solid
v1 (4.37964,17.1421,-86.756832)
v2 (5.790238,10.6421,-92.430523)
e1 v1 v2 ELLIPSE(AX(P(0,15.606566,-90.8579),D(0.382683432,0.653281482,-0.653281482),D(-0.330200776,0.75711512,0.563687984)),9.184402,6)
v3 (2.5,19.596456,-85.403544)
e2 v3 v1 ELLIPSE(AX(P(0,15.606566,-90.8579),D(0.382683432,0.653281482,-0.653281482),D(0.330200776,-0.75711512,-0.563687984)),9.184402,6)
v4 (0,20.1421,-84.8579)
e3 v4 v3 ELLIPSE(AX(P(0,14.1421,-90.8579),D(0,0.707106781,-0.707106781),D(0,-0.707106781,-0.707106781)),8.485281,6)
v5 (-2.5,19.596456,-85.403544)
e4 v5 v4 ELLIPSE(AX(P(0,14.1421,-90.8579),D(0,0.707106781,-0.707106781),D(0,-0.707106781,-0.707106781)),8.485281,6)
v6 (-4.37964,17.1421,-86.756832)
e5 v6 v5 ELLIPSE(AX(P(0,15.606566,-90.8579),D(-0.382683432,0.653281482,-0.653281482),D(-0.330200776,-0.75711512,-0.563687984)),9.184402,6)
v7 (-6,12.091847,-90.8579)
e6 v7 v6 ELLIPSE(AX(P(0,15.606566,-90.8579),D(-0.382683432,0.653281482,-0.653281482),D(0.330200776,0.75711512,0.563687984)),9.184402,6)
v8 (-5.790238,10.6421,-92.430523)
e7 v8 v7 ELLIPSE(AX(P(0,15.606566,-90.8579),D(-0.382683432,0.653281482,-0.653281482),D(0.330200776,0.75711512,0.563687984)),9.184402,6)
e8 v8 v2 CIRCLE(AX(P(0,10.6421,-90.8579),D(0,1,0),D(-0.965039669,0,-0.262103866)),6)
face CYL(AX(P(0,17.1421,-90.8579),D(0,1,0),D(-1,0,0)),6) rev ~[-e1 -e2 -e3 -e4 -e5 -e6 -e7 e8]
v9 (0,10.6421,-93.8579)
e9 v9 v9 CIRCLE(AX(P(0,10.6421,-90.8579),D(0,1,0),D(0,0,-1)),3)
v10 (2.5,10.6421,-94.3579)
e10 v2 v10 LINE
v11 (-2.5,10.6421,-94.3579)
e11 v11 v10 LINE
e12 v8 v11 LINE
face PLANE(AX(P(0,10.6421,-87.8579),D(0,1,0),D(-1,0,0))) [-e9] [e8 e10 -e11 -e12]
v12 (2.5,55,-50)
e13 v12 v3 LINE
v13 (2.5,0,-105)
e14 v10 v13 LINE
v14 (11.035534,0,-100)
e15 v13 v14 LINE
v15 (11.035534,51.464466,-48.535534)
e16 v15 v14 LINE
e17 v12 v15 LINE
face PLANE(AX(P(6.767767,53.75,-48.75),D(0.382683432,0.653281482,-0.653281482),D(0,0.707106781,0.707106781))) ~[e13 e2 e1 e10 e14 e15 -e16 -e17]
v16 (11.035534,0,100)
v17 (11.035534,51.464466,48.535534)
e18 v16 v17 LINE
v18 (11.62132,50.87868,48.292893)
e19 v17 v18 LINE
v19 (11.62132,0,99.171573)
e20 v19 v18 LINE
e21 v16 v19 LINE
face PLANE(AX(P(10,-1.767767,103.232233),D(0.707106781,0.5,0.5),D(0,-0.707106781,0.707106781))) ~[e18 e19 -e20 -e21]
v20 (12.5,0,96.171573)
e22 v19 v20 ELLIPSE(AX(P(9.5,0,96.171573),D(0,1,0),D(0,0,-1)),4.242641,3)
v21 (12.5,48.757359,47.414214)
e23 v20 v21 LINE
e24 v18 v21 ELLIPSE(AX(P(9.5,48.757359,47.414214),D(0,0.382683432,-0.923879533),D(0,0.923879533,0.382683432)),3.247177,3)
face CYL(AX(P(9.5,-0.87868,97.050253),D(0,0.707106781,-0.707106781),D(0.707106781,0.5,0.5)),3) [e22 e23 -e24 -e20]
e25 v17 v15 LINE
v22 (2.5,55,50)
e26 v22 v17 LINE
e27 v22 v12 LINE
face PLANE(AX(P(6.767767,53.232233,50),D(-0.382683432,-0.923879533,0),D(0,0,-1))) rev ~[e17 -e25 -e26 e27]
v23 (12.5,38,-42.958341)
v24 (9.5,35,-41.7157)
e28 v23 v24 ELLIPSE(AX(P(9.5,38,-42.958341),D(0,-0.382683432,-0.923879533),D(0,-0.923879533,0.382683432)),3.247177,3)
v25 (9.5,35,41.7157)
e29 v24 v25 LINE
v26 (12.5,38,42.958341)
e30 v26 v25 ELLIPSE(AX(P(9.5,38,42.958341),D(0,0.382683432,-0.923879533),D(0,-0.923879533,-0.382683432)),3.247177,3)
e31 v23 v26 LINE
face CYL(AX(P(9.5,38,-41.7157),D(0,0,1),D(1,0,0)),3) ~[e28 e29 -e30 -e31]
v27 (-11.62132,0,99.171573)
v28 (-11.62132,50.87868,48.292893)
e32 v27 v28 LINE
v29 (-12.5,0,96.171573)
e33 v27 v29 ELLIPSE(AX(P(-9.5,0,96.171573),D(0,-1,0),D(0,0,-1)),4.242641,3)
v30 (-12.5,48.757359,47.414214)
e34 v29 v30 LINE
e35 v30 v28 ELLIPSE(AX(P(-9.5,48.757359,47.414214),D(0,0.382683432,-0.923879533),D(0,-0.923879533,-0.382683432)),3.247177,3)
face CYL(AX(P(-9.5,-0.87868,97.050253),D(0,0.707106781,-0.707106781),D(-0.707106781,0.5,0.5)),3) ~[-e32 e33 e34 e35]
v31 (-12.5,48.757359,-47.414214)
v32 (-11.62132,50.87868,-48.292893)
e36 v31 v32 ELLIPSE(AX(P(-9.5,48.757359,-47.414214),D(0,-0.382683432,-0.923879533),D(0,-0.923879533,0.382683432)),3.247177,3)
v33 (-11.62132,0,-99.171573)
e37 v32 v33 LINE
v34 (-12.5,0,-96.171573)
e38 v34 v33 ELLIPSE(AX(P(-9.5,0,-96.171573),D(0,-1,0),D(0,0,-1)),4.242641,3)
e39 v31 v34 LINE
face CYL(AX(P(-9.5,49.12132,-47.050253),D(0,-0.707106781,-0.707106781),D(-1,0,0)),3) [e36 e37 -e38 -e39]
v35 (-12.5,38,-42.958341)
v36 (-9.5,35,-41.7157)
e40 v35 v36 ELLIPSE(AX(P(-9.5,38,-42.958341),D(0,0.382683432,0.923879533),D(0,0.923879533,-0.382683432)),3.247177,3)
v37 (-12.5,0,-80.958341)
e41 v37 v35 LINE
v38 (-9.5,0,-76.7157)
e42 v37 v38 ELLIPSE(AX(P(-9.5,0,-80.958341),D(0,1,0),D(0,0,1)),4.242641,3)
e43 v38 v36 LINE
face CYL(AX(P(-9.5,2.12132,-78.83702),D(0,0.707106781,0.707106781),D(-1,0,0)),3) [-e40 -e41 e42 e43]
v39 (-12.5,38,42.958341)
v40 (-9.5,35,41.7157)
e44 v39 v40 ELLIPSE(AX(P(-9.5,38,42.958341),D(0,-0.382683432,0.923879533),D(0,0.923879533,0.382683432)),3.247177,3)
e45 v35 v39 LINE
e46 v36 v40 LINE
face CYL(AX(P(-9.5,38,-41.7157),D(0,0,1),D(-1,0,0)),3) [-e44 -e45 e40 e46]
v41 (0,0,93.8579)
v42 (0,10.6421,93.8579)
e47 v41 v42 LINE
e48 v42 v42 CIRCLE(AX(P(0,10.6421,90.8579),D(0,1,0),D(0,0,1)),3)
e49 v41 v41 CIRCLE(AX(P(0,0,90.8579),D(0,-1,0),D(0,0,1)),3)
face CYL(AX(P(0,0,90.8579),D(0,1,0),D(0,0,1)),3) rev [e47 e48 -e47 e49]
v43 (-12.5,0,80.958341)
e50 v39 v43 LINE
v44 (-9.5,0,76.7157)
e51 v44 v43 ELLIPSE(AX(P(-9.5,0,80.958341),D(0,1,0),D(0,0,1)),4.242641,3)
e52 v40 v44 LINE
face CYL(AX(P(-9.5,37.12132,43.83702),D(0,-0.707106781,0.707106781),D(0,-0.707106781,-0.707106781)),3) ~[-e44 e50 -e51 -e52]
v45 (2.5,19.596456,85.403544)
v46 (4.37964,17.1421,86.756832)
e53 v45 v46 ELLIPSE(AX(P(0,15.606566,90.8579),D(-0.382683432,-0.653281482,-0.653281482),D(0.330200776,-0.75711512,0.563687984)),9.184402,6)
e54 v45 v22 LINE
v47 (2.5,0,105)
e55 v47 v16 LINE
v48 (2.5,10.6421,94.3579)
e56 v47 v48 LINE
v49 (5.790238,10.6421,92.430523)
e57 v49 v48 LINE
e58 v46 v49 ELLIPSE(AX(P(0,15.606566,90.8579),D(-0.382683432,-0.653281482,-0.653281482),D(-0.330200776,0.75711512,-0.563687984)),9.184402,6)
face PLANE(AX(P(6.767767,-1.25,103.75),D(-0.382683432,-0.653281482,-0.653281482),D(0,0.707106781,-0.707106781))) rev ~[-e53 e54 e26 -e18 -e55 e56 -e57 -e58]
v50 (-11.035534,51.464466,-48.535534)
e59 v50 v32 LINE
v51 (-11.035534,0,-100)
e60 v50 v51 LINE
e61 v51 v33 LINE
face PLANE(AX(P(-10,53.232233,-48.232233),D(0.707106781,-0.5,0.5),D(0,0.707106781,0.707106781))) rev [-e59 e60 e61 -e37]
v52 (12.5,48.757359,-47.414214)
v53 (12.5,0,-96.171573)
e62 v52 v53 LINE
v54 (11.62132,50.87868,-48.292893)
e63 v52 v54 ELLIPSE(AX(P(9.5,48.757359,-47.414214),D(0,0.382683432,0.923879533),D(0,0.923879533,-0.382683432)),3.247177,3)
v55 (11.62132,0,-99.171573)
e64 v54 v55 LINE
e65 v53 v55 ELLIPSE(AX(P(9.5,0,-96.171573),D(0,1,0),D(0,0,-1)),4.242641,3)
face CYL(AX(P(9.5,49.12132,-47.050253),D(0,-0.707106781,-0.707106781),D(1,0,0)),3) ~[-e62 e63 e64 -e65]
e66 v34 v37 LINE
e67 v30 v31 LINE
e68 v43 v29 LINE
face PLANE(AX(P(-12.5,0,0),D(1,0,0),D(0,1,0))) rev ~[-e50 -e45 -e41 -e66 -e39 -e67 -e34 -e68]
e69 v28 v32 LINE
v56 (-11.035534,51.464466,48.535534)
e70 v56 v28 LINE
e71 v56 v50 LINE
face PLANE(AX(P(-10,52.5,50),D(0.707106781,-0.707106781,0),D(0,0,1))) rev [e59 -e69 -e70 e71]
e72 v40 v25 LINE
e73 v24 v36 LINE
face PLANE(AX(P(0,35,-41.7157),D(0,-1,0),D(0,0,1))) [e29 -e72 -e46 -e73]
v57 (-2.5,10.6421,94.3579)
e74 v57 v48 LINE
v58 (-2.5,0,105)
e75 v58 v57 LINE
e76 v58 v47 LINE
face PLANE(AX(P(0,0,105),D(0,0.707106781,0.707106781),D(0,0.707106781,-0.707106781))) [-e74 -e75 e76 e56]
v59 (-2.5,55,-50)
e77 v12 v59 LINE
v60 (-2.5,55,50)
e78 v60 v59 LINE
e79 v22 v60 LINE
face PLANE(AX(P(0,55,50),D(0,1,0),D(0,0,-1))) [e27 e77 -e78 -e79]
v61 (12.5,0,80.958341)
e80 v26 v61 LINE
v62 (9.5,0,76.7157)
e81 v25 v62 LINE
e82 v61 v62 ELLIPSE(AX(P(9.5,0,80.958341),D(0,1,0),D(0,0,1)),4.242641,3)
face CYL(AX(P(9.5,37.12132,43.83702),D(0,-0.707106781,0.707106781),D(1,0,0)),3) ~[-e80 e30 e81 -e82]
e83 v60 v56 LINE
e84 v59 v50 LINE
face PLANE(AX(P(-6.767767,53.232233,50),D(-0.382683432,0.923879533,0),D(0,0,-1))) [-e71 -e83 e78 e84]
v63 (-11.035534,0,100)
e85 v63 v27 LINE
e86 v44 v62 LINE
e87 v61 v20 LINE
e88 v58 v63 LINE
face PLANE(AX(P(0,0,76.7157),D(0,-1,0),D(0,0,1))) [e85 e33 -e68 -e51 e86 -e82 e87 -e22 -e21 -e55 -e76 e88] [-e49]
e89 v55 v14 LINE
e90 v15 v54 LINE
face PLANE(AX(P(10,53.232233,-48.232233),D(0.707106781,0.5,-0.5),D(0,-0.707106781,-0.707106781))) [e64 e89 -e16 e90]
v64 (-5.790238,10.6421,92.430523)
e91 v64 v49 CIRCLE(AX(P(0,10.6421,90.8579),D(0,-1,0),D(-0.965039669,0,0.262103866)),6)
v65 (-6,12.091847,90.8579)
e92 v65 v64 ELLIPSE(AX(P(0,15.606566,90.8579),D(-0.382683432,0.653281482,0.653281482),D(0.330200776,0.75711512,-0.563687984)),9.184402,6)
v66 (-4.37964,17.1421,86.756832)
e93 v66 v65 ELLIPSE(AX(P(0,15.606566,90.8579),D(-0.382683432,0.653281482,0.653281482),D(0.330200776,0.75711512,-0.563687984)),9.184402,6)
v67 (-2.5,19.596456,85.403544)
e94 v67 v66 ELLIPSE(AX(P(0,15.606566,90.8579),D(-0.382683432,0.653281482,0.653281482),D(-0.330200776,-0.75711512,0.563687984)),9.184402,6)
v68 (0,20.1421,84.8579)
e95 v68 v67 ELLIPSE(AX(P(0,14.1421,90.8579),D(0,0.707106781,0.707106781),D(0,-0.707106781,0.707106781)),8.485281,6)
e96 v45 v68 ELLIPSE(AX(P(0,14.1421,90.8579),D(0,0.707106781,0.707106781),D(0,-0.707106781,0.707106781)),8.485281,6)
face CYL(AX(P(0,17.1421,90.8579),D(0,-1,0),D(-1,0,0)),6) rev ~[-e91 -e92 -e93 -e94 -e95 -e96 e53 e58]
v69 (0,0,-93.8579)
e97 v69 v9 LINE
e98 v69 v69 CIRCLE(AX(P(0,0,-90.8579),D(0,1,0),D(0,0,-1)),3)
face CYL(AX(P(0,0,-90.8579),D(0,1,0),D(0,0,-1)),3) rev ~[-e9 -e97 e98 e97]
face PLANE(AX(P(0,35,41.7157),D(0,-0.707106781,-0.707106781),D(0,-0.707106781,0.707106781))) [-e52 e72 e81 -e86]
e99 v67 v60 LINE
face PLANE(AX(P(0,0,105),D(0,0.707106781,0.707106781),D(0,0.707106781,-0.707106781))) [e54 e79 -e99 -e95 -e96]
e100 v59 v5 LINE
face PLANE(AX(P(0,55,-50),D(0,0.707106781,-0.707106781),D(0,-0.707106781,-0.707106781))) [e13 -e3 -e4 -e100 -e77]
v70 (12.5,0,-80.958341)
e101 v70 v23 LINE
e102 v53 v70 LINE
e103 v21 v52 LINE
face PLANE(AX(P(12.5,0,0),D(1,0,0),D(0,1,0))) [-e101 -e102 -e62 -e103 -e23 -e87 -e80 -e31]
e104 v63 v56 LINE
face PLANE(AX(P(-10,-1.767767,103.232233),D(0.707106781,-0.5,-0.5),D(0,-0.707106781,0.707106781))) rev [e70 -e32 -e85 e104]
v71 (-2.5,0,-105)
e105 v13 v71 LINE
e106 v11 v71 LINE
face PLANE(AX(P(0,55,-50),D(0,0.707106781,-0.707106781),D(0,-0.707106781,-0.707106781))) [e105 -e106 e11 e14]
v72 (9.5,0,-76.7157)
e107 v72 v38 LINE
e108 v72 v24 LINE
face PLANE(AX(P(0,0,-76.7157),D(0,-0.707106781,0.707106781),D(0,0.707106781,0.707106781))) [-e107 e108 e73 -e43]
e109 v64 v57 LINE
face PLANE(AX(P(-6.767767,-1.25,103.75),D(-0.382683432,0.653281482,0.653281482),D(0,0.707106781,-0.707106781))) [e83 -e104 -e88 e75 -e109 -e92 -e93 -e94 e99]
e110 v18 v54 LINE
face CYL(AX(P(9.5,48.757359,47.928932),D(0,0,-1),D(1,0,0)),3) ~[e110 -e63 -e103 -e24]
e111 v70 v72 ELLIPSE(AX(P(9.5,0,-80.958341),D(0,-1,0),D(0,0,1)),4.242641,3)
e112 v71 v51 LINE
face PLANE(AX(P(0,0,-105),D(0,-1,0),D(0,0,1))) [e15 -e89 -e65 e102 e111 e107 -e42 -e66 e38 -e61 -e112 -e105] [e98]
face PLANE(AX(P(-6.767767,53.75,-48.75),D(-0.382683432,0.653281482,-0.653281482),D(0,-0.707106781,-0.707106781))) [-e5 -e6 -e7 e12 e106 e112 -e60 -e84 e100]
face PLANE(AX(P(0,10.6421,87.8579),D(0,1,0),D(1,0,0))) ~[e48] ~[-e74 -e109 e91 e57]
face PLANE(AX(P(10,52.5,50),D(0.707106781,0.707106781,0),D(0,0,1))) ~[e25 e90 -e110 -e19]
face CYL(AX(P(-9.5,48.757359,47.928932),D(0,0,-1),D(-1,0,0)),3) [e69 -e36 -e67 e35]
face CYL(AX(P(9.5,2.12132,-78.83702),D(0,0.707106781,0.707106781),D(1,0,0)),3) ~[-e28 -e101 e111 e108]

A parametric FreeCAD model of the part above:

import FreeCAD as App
import Part
import Sketcher
Q = App.Units.Quantity


def edges_at(feature, points):
    """Names of the edges that pass closest to the given points."""
    edges = feature.Shape.Edges
    near = lambda p: min(range(len(edges)), key=lambda i: edges[i].distToShape(Part.Vertex(*p))[0])
    return sorted({f"Edge{near(p) + 1}" for p in points})


def add_polygon(sketch, points):
    """Adds a closed chain of lines whose ends are joined by coincident constraints."""
    first, n = sketch.GeometryCount, len(points)
    for a, b in zip(points, points[1:] + points[:1]):
        sketch.addGeometry(Part.LineSegment(App.Vector(*a, 0), App.Vector(*b, 0)), False)
    for i in range(n):
        sketch.addConstraint(Sketcher.Constraint("Coincident", first + i, 2, first + (i + 1) % n, 1))

doc = App.newDocument("Part")
body = doc.addObject("PartDesign::Body", "Body")

# Sketch on YZ plane
sketch1 = body.newObject("Sketcher::SketchObject", "Sketch")
sketch1.AttachmentSupport = (doc.getObject("YZ_Plane"), [""])
sketch1.MapMode = "FlatFace"
add_polygon(sketch1, [(55, 50), (0, 105), (0, 77), (35, 42), (35, -42), (0, -77), (0, -105), (55, -50)])  # lines 0-7
sketch1.addConstraint([
    Sketcher.Constraint("Vertical", 1),
    Sketcher.Constraint("Vertical", 3),
    Sketcher.Constraint("Vertical", 5),
    Sketcher.Constraint("Vertical", 7),
    Sketcher.Constraint("Symmetric", 1, 2, 4, 2, -1, 1),
    Sketcher.Constraint("Symmetric", 0, 2, 5, 2, -1),
    Sketcher.Constraint("Parallel", 0, 2),
    Sketcher.Constraint("Perpendicular", 2, 4),
    Sketcher.Constraint("Parallel", 4, 6),
    Sketcher.Constraint("Equal", 2, 4),
    Sketcher.Constraint("DistanceX", -1, 1, 2, 2, Q("35 mm")),
    Sketcher.Constraint("DistanceY", 5, 2, 0, 2, Q("210 mm")),
    Sketcher.Constraint("DistanceX", 3, 2, 6, 2, Q("20 mm")),
    Sketcher.Constraint("DistanceY", 1, 2, 1, 1, Q("28.2843 mm")),
])
pad1 = body.newObject("PartDesign::Pad", "Pad")
pad1.Profile = sketch1
pad1.Length = 25
pad1.Midplane = True
doc.recompute()

chamfer = body.newObject("PartDesign::Chamfer", "Chamfer")
chamfer.Base = (pad1, edges_at(pad1, [
    (-12.5, 27.5, -77.5),
    (-12.5, 55, 0),
    (-12.5, 27.5, 77.5),
    (12.5, 27.5, 77.5),
    (12.5, 55, 0),
    (12.5, 27.5, -77.5),
]))
chamfer.Size = 5
doc.recompute()

chamfer2 = body.newObject("PartDesign::Chamfer", "Chamfer001")
chamfer2.Base = (chamfer, edges_at(chamfer, [
    (7.5, 27.5, 77.5),
    (-7.5, 27.5, 77.5),
    (-7.5, 55, 0),
    (7.5, 55, 0),
    (7.5, 27.5, -77.5),
    (-7.5, 27.5, -77.5),
]))
chamfer2.Size = 5
doc.recompute()

fillet = body.newObject("PartDesign::Fillet", "Fillet")
fillet.Base = (chamfer2, edges_at(chamfer2, [
    (12.5, 25, 72.929),
    (12.5, 50, 0),
    (12.5, 25, -72.929),
    (-12.5, 25, -72.929),
    (-12.5, 50, 0),
    (-12.5, 25, 72.929),
]))
fillet.Radius = 3
doc.recompute()

fillet2 = body.newObject("PartDesign::Fillet", "Fillet001")
fillet2.Base = (fillet, edges_at(fillet, [
    (-12.5, 17.5, -59.216),
    (-12.5, 35, 0),
    (-12.5, 17.5, 59.216),
    (12.5, 17.5, 59.216),
    (12.5, 35, 0),
    (12.5, 17.5, -59.216),
]))
fillet2.Radius = 3

# Sketch on XZ plane
sketch2 = body.newObject("Sketcher::SketchObject", "Sketch001")
sketch2.AttachmentSupport = (doc.getObject("XZ_Plane"), [""])
sketch2.MapMode = "FlatFace"
sketch2.addGeometry(Part.Circle(App.Vector(0, -90.9, 0), App.Vector(0, 0, 1), 3), False)
sketch2.addConstraint([
    Sketcher.Constraint("PointOnObject", 0, 3, -2),
    Sketcher.Constraint("Diameter", 0, Q("6 mm")),
    Sketcher.Constraint("DistanceY", 0, 3, -1, 1, Q("90.858 mm")),
])
doc.recompute()
hole = body.newObject("PartDesign::Hole", "Hole")
hole.Profile = sketch2
hole.ThreadType = "None"
hole.Diameter = 6
hole.DepthType = "ThroughAll"

# Sketch on XZ plane
sketch3 = body.newObject("Sketcher::SketchObject", "Sketch002")
sketch3.AttachmentSupport = (doc.getObject("XZ_Plane"), [""])
sketch3.MapMode = "FlatFace"
sketch3.AttachmentOffset = App.Placement(App.Vector(0, 0, -17.1421), App.Rotation())
sketch3.addGeometry(Part.Circle(App.Vector(0, -91, 0), App.Vector(0, 0, 1), 6), False)
sketch3.addConstraint([
    Sketcher.Constraint("PointOnObject", 0, 3, -2),
    Sketcher.Constraint("Diameter", 0, Q("12 mm")),
    Sketcher.Constraint("DistanceY", 0, 3, -1, 1, Q("90.858 mm")),
])
pocket1 = body.newObject("PartDesign::Pocket", "Pocket")
pocket1.Profile = sketch3
pocket1.Type = "TwoLengths"
pocket1.Length = 3
pocket1.Length2 = 6.5
doc.recompute()

mirrored = body.newObject("PartDesign::Mirrored", "Mirrored")
mirrored.Originals = [pocket1, hole]
mirrored.MirrorPlane = (doc.getObject("XY_Plane"), [""])
body.Tip = mirrored

doc.recompute()
